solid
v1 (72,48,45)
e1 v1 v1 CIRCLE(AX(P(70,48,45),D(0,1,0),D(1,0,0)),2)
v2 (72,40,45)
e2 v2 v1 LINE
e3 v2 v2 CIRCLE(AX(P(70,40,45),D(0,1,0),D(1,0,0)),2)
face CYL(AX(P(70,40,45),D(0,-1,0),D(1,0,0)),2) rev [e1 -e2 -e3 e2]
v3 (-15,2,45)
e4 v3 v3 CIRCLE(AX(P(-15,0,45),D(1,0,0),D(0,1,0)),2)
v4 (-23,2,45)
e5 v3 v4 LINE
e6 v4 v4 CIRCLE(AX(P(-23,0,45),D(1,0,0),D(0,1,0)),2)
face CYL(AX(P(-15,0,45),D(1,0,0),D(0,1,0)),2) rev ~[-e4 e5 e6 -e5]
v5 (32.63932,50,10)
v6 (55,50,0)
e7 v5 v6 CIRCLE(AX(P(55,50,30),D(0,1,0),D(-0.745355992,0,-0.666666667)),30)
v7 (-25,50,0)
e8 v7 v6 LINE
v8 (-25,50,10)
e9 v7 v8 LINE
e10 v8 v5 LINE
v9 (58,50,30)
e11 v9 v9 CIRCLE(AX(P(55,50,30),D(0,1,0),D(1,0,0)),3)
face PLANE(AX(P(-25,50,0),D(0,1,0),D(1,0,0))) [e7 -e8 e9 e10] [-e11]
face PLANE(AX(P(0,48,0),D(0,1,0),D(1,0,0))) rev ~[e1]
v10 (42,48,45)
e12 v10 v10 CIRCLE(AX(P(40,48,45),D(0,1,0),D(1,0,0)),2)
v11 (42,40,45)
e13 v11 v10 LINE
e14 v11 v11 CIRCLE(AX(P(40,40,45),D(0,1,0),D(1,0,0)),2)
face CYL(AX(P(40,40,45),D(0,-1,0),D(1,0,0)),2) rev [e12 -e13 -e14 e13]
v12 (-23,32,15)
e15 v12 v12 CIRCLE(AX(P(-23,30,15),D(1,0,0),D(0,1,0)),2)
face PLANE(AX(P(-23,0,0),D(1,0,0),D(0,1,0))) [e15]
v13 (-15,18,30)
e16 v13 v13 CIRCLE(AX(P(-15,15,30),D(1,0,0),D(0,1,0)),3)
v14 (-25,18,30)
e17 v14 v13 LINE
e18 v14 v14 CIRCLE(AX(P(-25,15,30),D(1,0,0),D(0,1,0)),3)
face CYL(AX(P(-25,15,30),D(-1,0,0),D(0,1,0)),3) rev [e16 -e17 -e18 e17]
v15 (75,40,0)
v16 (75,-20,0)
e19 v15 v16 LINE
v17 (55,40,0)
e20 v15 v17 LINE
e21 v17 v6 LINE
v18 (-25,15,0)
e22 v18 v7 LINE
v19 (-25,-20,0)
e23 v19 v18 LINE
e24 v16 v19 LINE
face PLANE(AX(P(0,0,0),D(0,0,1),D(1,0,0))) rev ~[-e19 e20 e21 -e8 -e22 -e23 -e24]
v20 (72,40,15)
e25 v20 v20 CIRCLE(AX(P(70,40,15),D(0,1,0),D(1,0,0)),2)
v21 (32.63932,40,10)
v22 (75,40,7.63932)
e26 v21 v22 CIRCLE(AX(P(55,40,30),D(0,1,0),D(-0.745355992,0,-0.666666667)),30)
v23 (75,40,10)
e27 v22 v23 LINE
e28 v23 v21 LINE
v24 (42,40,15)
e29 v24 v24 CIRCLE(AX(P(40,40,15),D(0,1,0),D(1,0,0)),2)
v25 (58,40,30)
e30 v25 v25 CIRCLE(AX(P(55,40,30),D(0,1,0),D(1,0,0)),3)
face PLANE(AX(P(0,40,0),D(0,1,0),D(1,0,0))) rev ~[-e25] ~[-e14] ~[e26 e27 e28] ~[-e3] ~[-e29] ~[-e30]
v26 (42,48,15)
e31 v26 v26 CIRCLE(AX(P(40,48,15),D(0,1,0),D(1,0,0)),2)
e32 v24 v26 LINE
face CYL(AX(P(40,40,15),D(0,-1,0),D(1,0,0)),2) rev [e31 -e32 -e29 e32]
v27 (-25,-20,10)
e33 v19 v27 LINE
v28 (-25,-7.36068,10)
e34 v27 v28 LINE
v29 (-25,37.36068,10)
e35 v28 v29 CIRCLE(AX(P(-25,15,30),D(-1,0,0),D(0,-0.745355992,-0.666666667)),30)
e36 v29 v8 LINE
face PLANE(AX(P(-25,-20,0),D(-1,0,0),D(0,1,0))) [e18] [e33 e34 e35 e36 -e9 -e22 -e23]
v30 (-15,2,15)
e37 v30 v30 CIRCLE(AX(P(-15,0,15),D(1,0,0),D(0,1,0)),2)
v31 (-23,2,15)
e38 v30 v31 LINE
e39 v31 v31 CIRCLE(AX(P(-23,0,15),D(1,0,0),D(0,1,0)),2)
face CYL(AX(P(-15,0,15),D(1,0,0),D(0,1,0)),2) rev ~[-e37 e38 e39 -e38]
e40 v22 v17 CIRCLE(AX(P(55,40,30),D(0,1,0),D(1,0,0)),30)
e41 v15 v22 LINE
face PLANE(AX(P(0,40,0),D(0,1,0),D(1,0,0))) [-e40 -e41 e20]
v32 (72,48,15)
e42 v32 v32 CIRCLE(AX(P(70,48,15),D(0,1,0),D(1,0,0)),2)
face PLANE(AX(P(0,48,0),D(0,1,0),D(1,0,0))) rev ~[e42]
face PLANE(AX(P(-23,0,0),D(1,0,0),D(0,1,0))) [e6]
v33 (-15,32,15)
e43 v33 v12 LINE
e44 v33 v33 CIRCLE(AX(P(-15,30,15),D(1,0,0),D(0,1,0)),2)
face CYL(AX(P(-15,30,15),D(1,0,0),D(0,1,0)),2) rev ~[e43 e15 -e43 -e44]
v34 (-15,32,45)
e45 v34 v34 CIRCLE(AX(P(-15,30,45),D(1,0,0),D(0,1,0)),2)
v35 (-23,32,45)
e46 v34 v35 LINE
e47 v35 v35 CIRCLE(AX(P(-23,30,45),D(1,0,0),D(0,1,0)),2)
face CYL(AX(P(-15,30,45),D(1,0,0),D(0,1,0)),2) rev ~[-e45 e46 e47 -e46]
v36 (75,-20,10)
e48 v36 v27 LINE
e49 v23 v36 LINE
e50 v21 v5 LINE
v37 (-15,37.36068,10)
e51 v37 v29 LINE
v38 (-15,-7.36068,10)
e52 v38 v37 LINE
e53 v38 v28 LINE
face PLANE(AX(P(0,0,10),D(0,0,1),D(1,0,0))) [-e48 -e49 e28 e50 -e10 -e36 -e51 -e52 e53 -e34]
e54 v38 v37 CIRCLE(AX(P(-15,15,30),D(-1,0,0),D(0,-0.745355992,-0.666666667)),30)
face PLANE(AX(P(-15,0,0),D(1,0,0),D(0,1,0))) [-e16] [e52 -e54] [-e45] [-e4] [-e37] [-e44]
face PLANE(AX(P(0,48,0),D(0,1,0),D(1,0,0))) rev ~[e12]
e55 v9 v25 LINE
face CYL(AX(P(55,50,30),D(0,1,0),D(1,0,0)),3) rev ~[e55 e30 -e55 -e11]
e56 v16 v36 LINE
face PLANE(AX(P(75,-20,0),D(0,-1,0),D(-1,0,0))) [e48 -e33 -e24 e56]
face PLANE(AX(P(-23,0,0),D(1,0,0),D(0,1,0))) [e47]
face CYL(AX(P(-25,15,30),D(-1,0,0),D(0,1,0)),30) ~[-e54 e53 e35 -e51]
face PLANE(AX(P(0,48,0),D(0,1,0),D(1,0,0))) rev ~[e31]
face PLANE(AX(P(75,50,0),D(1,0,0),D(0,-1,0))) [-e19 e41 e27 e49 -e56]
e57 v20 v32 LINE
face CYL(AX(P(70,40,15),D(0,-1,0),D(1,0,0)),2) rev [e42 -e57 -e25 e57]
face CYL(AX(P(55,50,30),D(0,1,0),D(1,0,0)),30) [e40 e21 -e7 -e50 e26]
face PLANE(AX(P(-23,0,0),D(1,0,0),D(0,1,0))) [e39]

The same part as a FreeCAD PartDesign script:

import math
import FreeCAD as App
import Part
import Sketcher
Q = App.Units.Quantity

doc = App.newDocument("Part")
params = doc.addObject("Spreadsheet::Sheet", "Params")
for row, (alias, value) in enumerate([
    ("sketch1_width", "100 mm"),
    ("sketch1_height", "70 mm"),
    ("pad1_length", "10 mm"),
    ("sketch2_diameter", "60 mm"),
    ("sketch2_diameter2", "6 mm"),
    ("pad2_length", "10 mm"),
    ("sketch3_diameter", "60 mm"),
    ("sketch3_diameter2", "6 mm"),
    ("pad3_length", "10 mm"),
    ("sketch4_radius", "30 mm"),
    ("sketch4_height", "7.64 mm"),
    ("pocket1_length", "10 mm"),
    ("sketch5_diameter", "4 mm"),
    ("pocket2_length", "8 mm"),
    ("sketch6_diameter", "4 mm"),
    ("pocket3_length", "8 mm"),
], start=1):
    params.set(f"A{row}", alias)
    params.set(f"B{row}", "=" + value)
    params.setAlias(f"B{row}", alias)

body = doc.addObject("PartDesign::Body", "Body")

sketch1 = doc.addObject("Sketcher::SketchObject", "Sketch")
body.addObject(sketch1)
sketch1.AttachmentSupport = (doc.XY_Plane, [""])
sketch1.MapMode = "FlatFace"
sketch1.addGeometry([
    Part.LineSegment(App.Vector(75, 50, 0), App.Vector(-25, 50, 0)),
    Part.LineSegment(App.Vector(-25, 50, 0), App.Vector(-25, -20, 0)),
    Part.LineSegment(App.Vector(-25, -20, 0), App.Vector(75, -20, 0)),
    Part.LineSegment(App.Vector(75, -20, 0), App.Vector(75, 50, 0)),
], False)
sketch1.addConstraint([
    Sketcher.Constraint("Coincident", 0, 2, 1, 1),
    Sketcher.Constraint("Coincident", 1, 2, 2, 1),
    Sketcher.Constraint("Coincident", 2, 2, 3, 1),
    Sketcher.Constraint("Coincident", 3, 2, 0, 1),
    Sketcher.Constraint("Horizontal", 0),
    Sketcher.Constraint("Vertical", 1),
    Sketcher.Constraint("Horizontal", 2),
    Sketcher.Constraint("Vertical", 3),
    Sketcher.Constraint("DistanceX", 0, 2, 0, 1, Q("100 mm")),
    Sketcher.Constraint("DistanceY", 1, 2, 1, 1, Q("70 mm")),
    Sketcher.Constraint("DistanceX", 0, 2, -1, 1, Q("25 mm")),
    Sketcher.Constraint("DistanceY", -1, 1, 0, 2, Q("50 mm")),
])
sketch1.setExpression("Constraints[8]", "Params.sketch1_width")
sketch1.setExpression("Constraints[9]", "Params.sketch1_height")
pad1 = doc.addObject("PartDesign::Pad", "Pad")
body.addObject(pad1)
pad1.Profile = sketch1
pad1.setExpression("Length", "Params.pad1_length")

sketch2 = doc.addObject("Sketcher::SketchObject", "Sketch001")
body.addObject(sketch2)
sketch2.AttachmentSupport = (doc.YZ_Plane, [""])
sketch2.MapMode = "FlatFace"
sketch2.AttachmentOffset = App.Placement(App.Vector(0, 0, -25), App.Rotation())
sketch2.addGeometry([
    Part.Circle(App.Vector(15, 30, 0), App.Vector(0, 0, 1), 30),
    Part.Circle(App.Vector(15, 30, 0), App.Vector(0, 0, 1), 3),
], False)
sketch2.addConstraint([
    Sketcher.Constraint("Coincident", 1, 3, 0, 3),
    Sketcher.Constraint("Diameter", 0, Q("60 mm")),
    Sketcher.Constraint("Diameter", 1, Q("6 mm")),
    Sketcher.Constraint("DistanceX", -1, 1, 0, 3, Q("15 mm")),
    Sketcher.Constraint("DistanceY", -1, 1, 0, 3, Q("30 mm")),
])
sketch2.setExpression("Constraints[1]", "Params.sketch2_diameter")
sketch2.setExpression("Constraints[2]", "Params.sketch2_diameter2")
pad2 = doc.addObject("PartDesign::Pad", "Pad001")
body.addObject(pad2)
pad2.Profile = sketch2
pad2.setExpression("Length", "Params.pad2_length")

sketch3 = doc.addObject("Sketcher::SketchObject", "Sketch002")
body.addObject(sketch3)
sketch3.AttachmentSupport = (doc.XZ_Plane, [""])
sketch3.MapMode = "FlatFace"
sketch3.AttachmentOffset = App.Placement(App.Vector(0, 0, -50), App.Rotation())
sketch3.addGeometry([
    Part.Circle(App.Vector(55, 30, 0), App.Vector(0, 0, 1), 30),
    Part.Circle(App.Vector(55, 30, 0), App.Vector(0, 0, 1), 3),
], False)
sketch3.addConstraint([
    Sketcher.Constraint("Coincident", 1, 3, 0, 3),
    Sketcher.Constraint("Diameter", 0, Q("60 mm")),
    Sketcher.Constraint("Diameter", 1, Q("6 mm")),
    Sketcher.Constraint("DistanceY", -1, 1, 0, 3, Q("30 mm")),
    Sketcher.Constraint("DistanceX", -1, 1, 0, 3, Q("55 mm")),
])
sketch3.setExpression("Constraints[1]", "Params.sketch3_diameter")
sketch3.setExpression("Constraints[2]", "Params.sketch3_diameter2")
pad3 = doc.addObject("PartDesign::Pad", "Pad002")
body.addObject(pad3)
pad3.Profile = sketch3
pad3.setExpression("Length", "Params.pad3_length")

sketch4 = doc.addObject("Sketcher::SketchObject", "Sketch003")
body.addObject(sketch4)
sketch4.AttachmentSupport = (doc.XZ_Plane, [""])
sketch4.MapMode = "FlatFace"
sketch4.AttachmentOffset = App.Placement(App.Vector(0, 0, -50), App.Rotation())
sketch4.addGeometry([
    Part.ArcOfCircle(Part.Circle(App.Vector(55, 30, 0), App.Vector(0, 0, 1), 30), math.radians(-90), math.radians(-48)),
    Part.LineSegment(App.Vector(75, 8, 0), App.Vector(75, 0, 0)),
    Part.LineSegment(App.Vector(75, 0, 0), App.Vector(55, 0, 0)),
], False)
sketch4.addConstraint([
    Sketcher.Constraint("Coincident", 0, 2, 1, 1),
    Sketcher.Constraint("Coincident", 1, 2, 2, 1),
    Sketcher.Constraint("Tangent", 2, 2, 0, 1),
    Sketcher.Constraint("Vertical", 1),
    Sketcher.Constraint("Horizontal", 2),
    Sketcher.Constraint("PointOnObject", 1, 2, -1),
    Sketcher.Constraint("Radius", 0, Q("30 mm")),
    Sketcher.Constraint("DistanceX", -1, 1, 0, 3, Q("55 mm")),
    Sketcher.Constraint("DistanceY", 1, 2, 1, 1, Q("7.64 mm")),
])
sketch4.setExpression("Constraints[6]", "Params.sketch4_radius")
sketch4.setExpression("Constraints[8]", "Params.sketch4_height")
pocket1 = doc.addObject("PartDesign::Pocket", "Pocket")
body.addObject(pocket1)
pocket1.Profile = sketch4
pocket1.setExpression("Length", "Params.pocket1_length")
pocket1.Reversed = True

sketch5 = doc.addObject("Sketcher::SketchObject", "Sketch004")
body.addObject(sketch5)
sketch5.AttachmentSupport = (doc.YZ_Plane, [""])
sketch5.MapMode = "FlatFace"
sketch5.AttachmentOffset = App.Placement(App.Vector(0, 0, -15), App.Rotation())
sketch5.addGeometry([
    Part.Circle(App.Vector(0, 15, 0), App.Vector(0, 0, 1), 2),
    Part.Circle(App.Vector(0, 45, 0), App.Vector(0, 0, 1), 2),
    Part.Circle(App.Vector(30, 45, 0), App.Vector(0, 0, 1), 2),
    Part.Circle(App.Vector(30, 15, 0), App.Vector(0, 0, 1), 2),
], False)
sketch5.addConstraint([
    Sketcher.Constraint("Equal", 0, 1),
    Sketcher.Constraint("Equal", 1, 2),
    Sketcher.Constraint("Equal", 2, 3),
    Sketcher.Constraint("PointOnObject", 0, 3, -2),
    Sketcher.Constraint("PointOnObject", 1, 3, -2),
    Sketcher.Constraint("Horizontal", 1, 3, 2, 3),
    Sketcher.Constraint("Horizontal", 0, 3, 3, 3),
    Sketcher.Constraint("Vertical", 2, 3, 3, 3),
    Sketcher.Constraint("Diameter", 0, Q("4 mm")),
    Sketcher.Constraint("DistanceY", -1, 1, 0, 3, Q("15 mm")),
    Sketcher.Constraint("DistanceX", -1, 1, 2, 3, Q("30 mm")),
    Sketcher.Constraint("DistanceY", 0, 3, 1, 3, Q("30 mm")),
])
sketch5.setExpression("Constraints[8]", "Params.sketch5_diameter")
pocket2 = doc.addObject("PartDesign::Pocket", "Pocket001")
body.addObject(pocket2)
pocket2.Profile = sketch5
pocket2.setExpression("Length", "Params.pocket2_length")

sketch6 = doc.addObject("Sketcher::SketchObject", "Sketch005")
body.addObject(sketch6)
sketch6.AttachmentSupport = (doc.XZ_Plane, [""])
sketch6.MapMode = "FlatFace"
sketch6.AttachmentOffset = App.Placement(App.Vector(0, 0, -40), App.Rotation())
sketch6.addGeometry([
    Part.Circle(App.Vector(40, 45, 0), App.Vector(0, 0, 1), 2),
    Part.Circle(App.Vector(70, 45, 0), App.Vector(0, 0, 1), 2),
    Part.Circle(App.Vector(40, 15, 0), App.Vector(0, 0, 1), 2),
    Part.Circle(App.Vector(70, 15, 0), App.Vector(0, 0, 1), 2),
], False)
sketch6.addConstraint([
    Sketcher.Constraint("Equal", 0, 1),
    Sketcher.Constraint("Equal", 1, 2),
    Sketcher.Constraint("Equal", 2, 3),
    Sketcher.Constraint("Horizontal", 0, 3, 1, 3),
    Sketcher.Constraint("Horizontal", 2, 3, 3, 3),
    Sketcher.Constraint("Vertical", 0, 3, 2, 3),
    Sketcher.Constraint("Vertical", 1, 3, 3, 3),
    Sketcher.Constraint("Diameter", 0, Q("4 mm")),
    Sketcher.Constraint("DistanceY", -1, 1, 2, 3, Q("15 mm")),
    Sketcher.Constraint("DistanceX", 0, 3, 1, 3, Q("30 mm")),
    Sketcher.Constraint("DistanceY", 2, 3, 0, 3, Q("30 mm")),
    Sketcher.Constraint("DistanceX", -1, 1, 0, 3, Q("40 mm")),
])
sketch6.setExpression("Constraints[7]", "Params.sketch6_diameter")
pocket3 = doc.addObject("PartDesign::Pocket", "Pocket002")
body.addObject(pocket3)
pocket3.Profile = sketch6
pocket3.setExpression("Length", "Params.pocket3_length")

doc.recompute()
